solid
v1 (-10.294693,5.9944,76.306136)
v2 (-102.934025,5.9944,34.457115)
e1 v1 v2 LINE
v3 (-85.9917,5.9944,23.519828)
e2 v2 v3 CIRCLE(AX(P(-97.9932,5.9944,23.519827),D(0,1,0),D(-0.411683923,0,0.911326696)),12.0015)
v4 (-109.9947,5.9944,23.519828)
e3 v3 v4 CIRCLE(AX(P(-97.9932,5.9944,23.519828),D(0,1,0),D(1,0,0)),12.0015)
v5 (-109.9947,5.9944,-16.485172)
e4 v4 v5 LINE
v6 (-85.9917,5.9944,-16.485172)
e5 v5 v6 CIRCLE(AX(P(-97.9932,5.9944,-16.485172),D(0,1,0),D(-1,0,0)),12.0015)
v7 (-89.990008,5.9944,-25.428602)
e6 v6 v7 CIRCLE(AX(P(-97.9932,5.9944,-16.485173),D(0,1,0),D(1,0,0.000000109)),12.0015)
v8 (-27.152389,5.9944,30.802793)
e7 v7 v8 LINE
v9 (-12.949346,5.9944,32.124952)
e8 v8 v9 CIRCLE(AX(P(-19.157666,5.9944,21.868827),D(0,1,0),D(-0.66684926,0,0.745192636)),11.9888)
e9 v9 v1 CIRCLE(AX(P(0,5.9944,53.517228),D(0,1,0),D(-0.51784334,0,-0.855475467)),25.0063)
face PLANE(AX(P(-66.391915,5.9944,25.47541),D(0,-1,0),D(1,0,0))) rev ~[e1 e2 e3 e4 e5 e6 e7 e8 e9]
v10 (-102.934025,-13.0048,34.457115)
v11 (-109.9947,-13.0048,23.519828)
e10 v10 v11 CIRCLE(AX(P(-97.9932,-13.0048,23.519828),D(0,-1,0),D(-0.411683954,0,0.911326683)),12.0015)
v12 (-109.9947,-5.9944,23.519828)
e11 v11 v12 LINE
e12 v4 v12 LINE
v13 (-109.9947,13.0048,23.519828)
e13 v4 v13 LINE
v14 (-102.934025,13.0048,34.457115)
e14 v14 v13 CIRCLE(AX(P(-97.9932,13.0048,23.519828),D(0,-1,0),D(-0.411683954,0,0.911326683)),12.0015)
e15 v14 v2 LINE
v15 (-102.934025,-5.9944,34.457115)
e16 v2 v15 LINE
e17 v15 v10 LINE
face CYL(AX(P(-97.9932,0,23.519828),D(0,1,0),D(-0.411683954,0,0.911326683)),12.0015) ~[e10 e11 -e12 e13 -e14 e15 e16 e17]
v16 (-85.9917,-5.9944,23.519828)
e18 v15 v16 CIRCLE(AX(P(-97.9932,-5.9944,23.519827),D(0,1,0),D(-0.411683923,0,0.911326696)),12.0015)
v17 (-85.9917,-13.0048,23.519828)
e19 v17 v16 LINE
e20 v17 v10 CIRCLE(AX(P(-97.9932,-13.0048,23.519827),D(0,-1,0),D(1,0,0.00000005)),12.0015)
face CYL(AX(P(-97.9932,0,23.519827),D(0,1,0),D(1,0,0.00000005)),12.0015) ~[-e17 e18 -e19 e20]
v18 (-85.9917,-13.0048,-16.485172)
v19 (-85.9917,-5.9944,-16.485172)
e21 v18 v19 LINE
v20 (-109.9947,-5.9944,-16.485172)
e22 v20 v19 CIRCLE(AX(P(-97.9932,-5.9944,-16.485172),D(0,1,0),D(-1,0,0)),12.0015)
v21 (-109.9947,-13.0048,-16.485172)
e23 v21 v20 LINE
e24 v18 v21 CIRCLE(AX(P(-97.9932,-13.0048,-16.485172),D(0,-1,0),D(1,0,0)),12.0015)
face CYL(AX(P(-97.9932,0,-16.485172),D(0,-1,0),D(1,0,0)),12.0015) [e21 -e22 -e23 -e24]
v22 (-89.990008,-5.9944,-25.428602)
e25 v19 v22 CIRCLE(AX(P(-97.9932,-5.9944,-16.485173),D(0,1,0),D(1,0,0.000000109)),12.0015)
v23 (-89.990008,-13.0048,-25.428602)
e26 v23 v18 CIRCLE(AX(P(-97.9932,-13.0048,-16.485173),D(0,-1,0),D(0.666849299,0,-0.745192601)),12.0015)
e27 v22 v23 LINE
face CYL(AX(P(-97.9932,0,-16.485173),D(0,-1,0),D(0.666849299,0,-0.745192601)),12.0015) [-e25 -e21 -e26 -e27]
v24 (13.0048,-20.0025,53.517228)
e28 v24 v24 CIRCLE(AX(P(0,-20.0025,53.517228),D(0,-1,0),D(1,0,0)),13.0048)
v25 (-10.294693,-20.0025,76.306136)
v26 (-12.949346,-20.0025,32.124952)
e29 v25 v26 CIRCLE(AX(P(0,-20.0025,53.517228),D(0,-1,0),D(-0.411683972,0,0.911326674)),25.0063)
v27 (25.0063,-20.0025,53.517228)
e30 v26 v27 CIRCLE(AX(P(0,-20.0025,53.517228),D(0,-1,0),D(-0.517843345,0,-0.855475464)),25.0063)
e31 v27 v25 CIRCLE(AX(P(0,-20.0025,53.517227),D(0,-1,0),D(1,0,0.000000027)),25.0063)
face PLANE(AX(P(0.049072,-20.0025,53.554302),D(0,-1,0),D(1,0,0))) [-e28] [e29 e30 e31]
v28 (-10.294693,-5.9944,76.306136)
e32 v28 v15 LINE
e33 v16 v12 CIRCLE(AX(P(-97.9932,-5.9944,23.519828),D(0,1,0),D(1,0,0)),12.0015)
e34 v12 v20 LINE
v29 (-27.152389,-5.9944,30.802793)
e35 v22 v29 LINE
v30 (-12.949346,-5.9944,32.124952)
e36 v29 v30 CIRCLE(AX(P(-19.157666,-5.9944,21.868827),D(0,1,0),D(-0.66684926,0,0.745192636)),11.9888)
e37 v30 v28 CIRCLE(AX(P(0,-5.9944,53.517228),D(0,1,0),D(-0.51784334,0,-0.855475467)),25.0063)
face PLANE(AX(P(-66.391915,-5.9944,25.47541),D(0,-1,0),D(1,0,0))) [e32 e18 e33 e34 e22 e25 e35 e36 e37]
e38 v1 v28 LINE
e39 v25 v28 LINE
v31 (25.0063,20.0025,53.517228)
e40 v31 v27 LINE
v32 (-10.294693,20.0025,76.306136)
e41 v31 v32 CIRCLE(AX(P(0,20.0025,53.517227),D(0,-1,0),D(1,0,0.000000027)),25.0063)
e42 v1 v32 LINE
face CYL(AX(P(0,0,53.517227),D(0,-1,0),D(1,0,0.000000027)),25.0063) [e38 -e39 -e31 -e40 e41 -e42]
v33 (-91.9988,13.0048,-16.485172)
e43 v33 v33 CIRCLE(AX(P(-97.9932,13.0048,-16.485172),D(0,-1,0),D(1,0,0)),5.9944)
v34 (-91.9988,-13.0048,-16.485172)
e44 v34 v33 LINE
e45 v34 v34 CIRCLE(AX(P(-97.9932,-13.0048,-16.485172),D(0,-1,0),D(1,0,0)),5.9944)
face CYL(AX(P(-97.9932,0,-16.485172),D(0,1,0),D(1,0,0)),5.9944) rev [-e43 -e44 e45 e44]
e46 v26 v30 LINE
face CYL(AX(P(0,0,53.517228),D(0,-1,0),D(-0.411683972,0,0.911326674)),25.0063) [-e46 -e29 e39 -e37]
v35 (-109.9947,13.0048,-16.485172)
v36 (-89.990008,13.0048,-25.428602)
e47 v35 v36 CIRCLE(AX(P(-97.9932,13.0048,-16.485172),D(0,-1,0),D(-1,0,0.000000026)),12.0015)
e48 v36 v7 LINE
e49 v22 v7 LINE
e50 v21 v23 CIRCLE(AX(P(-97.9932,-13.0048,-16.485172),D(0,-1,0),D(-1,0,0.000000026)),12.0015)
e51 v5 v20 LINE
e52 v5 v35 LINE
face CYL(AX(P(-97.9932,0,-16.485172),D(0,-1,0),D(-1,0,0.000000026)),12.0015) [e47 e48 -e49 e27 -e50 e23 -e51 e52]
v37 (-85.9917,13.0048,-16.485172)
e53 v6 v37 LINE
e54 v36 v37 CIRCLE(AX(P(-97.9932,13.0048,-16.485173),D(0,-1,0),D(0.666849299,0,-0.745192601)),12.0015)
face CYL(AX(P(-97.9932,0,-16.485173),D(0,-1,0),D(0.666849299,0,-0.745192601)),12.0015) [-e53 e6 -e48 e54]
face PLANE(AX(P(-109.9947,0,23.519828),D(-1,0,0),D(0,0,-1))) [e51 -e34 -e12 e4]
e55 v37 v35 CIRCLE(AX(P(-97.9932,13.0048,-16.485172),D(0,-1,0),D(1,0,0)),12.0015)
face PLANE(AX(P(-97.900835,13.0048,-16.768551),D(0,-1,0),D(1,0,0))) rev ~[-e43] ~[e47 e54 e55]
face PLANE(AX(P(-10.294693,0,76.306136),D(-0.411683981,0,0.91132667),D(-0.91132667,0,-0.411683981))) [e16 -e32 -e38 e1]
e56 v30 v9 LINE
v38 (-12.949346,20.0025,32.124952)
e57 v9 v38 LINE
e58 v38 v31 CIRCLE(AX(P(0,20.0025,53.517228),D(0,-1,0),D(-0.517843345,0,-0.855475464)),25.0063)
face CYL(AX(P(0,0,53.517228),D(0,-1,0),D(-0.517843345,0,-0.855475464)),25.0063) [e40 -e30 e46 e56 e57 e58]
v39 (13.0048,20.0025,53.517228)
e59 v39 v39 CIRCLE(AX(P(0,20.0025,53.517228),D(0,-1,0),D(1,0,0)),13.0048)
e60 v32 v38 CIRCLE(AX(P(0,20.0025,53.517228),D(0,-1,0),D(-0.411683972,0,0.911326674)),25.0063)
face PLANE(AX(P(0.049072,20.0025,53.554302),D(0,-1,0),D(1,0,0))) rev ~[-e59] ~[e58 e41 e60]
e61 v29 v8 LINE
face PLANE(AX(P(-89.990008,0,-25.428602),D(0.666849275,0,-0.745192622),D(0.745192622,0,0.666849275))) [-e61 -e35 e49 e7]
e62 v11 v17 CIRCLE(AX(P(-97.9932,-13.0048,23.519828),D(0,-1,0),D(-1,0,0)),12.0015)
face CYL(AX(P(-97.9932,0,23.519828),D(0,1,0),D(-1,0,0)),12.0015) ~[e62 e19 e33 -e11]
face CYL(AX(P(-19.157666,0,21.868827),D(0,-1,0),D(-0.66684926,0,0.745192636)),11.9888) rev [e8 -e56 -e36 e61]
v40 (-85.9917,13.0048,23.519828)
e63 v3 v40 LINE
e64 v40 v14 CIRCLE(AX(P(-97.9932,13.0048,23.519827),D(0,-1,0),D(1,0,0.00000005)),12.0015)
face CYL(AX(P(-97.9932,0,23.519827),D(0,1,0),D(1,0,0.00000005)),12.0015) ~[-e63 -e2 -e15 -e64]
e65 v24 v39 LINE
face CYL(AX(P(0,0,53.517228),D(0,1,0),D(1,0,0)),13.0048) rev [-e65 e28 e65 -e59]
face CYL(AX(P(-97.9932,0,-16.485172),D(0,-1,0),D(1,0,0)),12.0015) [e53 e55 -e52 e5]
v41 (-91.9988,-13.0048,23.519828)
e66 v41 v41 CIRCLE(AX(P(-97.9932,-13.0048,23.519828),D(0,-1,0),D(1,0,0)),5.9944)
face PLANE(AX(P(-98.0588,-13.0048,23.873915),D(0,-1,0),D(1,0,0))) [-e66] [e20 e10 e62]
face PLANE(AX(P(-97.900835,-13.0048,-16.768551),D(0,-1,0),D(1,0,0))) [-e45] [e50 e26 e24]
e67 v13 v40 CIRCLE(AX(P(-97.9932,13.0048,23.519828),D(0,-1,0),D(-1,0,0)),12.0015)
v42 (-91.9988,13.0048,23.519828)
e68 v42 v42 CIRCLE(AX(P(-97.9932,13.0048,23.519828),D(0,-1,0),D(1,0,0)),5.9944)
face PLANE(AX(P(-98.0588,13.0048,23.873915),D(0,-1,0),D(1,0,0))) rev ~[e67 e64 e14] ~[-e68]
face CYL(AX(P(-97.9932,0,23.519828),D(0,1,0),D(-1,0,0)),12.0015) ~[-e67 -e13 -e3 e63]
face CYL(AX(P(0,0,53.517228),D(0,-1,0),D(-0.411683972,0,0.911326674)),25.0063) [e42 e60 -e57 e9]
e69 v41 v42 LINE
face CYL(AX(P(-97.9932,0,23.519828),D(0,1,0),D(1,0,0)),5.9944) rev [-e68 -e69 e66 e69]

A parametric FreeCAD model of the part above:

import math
import FreeCAD as App
import Part
import Sketcher
Q = App.Units.Quantity

doc = App.newDocument("Part")
body = doc.addObject("PartDesign::Body", "Body")

# Sketch on XZ plane
sketch1 = body.newObject("Sketcher::SketchObject", "Sketch")
sketch1.AttachmentSupport = (doc.getObject("XZ_Plane"), [""])
sketch1.MapMode = "FlatFace"
sketch1.addGeometry([
    Part.ArcOfCircle(Part.Circle(App.Vector(0, 54, 0), App.Vector(0, 0, 1), 25), math.radians(114), math.radians(239)),  # 0
    Part.LineSegment(App.Vector(-10, 76, 0), App.Vector(-103, 34, 0)),  # 1
    Part.ArcOfCircle(Part.Circle(App.Vector(-98, 24, 0), App.Vector(0, 0, 1), 12), math.radians(0), math.radians(114)),  # 2
    Part.ArcOfCircle(Part.Circle(App.Vector(-98, 24, 0), App.Vector(0, 0, 1), 12), math.radians(180), math.radians(360)),  # 3
    Part.LineSegment(App.Vector(-110, 24, 0), App.Vector(-110, -16, 0)),  # 4
    Part.ArcOfCircle(Part.Circle(App.Vector(-98, -16, 0), App.Vector(0, 0, 1), 12), math.radians(0), math.radians(180)),  # 5
    Part.ArcOfCircle(Part.Circle(App.Vector(-98, -16, 0), App.Vector(0, 0, 1), 12), math.radians(-48), math.radians(0)),  # 6
    Part.LineSegment(App.Vector(-90, -25, 0), App.Vector(-27, 31, 0)),  # 7
    Part.ArcOfCircle(Part.Circle(App.Vector(-19, 22, 0), App.Vector(0, 0, 1), 12), math.radians(59), math.radians(132)),  # 8
], False)
sketch1.addConstraint([
    Sketcher.Constraint("Tangent", 0, 1, 1, 1),
    Sketcher.Constraint("Tangent", 1, 2, 2, 2),
    Sketcher.Constraint("Tangent", 2, 1, 3, 2),
    Sketcher.Constraint("Tangent", 3, 1, 4, 1),
    Sketcher.Constraint("Tangent", 4, 2, 5, 2),
    Sketcher.Constraint("Tangent", 5, 1, 6, 2),
    Sketcher.Constraint("Tangent", 6, 1, 7, 1),
    Sketcher.Constraint("Tangent", 7, 2, 8, 2),
    Sketcher.Constraint("Tangent", 8, 1, 0, 2),
    Sketcher.Constraint("Vertical", 4),
    Sketcher.Constraint("Equal", 2, 3),
    Sketcher.Constraint("Equal", 3, 5),
    Sketcher.Constraint("Equal", 5, 6),
    Sketcher.Constraint("PointOnObject", 0, 3, -2),
    Sketcher.Constraint("Horizontal", 3, 3, 2, 1),
    Sketcher.Constraint("Horizontal", 4, 2, 5, 1),
    Sketcher.Constraint("Radius", 8, Q("0.472 in")),
    Sketcher.Constraint("Radius", 0, Q("0.9845 in")),
    Sketcher.Constraint("Radius", 2, Q("0.4725 in")),
    Sketcher.Constraint("DistanceY", 4, 2, 4, 1, Q("1.575 in")),
    Sketcher.Constraint("DistanceY", 5, 3, 8, 3, Q("1.51 in")),
    Sketcher.Constraint("DistanceX", 2, 3, -1, 1, Q("3.858 in")),
    Sketcher.Constraint("DistanceY", 2, 3, 0, 3, Q("1.181 in")),
    Sketcher.Constraint("DistanceY", -1, 1, 3, 3, 23.519828),
])
pad1 = body.newObject("PartDesign::Pad", "Pad")
pad1.Profile = sketch1
pad1.Length = Q("0.472 in")
pad1.Midplane = True

# Sketch on XZ plane
sketch2 = body.newObject("Sketcher::SketchObject", "Sketch001")
sketch2.AttachmentSupport = (doc.getObject("XZ_Plane"), [""])
sketch2.MapMode = "FlatFace"
sketch2.addGeometry([
    Part.ArcOfCircle(Part.Circle(App.Vector(0, 54, 0), App.Vector(0, 0, 1), 25), math.radians(-121), math.radians(0)),
    Part.ArcOfCircle(Part.Circle(App.Vector(0, 54, 0), App.Vector(0, 0, 1), 25), math.radians(0), math.radians(114)),
    Part.ArcOfCircle(Part.Circle(App.Vector(0, 54, 0), App.Vector(0, 0, 1), 25), math.radians(114), math.radians(239)),
    Part.Circle(App.Vector(0, 54, 0), App.Vector(0, 0, 1), 13),
], False)
sketch2.addConstraint([
    Sketcher.Constraint("Tangent", 0, 2, 1, 1),
    Sketcher.Constraint("Tangent", 1, 2, 2, 1),
    Sketcher.Constraint("Tangent", 2, 2, 0, 1),
    Sketcher.Constraint("Coincident", 3, 3, 0, 3),
    Sketcher.Constraint("PointOnObject", 0, 3, -2),
    Sketcher.Constraint("Horizontal", 3, 3, 0, 2),
    Sketcher.Constraint("Diameter", 3, Q("1.024 in")),
    Sketcher.Constraint("Radius", 0, Q("0.9845 in")),
    Sketcher.Constraint("DistanceY", -1, 1, 0, 3, 53.517228),
    Sketcher.Constraint("DistanceY", -1, 1, 2, 2, 32.124952),
    Sketcher.Constraint("DistanceY", 2, 3, 1, 2, 22.788908),
])
pad2 = body.newObject("PartDesign::Pad", "Pad001")
pad2.Profile = sketch2
pad2.Length = Q("1.575 in")
pad2.Midplane = True

# Sketch on XZ plane
sketch3 = body.newObject("Sketcher::SketchObject", "Sketch002")
sketch3.AttachmentSupport = (doc.getObject("XZ_Plane"), [""])
sketch3.MapMode = "FlatFace"
sketch3.addGeometry([
    Part.ArcOfCircle(Part.Circle(App.Vector(-98, 24, 0), App.Vector(0, 0, 1), 12), math.radians(0), math.radians(114)),  # 0
    Part.ArcOfCircle(Part.Circle(App.Vector(-98, 24, 0), App.Vector(0, 0, 1), 12), math.radians(114), math.radians(180)),  # 1
    Part.ArcOfCircle(Part.Circle(App.Vector(-98, 24, 0), App.Vector(0, 0, 1), 12), math.radians(180), math.radians(360)),  # 2
    Part.Circle(App.Vector(-98, 24, 0), App.Vector(0, 0, 1), 6),  # 3
    Part.ArcOfCircle(Part.Circle(App.Vector(-98, -16, 0), App.Vector(0, 0, 1), 12), math.radians(180), math.radians(312)),  # 4
    Part.ArcOfCircle(Part.Circle(App.Vector(-98, -16, 0), App.Vector(0, 0, 1), 12), math.radians(-48), math.radians(0)),  # 5
    Part.ArcOfCircle(Part.Circle(App.Vector(-98, -16, 0), App.Vector(0, 0, 1), 12), math.radians(0), math.radians(180)),  # 6
    Part.Circle(App.Vector(-98, -16, 0), App.Vector(0, 0, 1), 6),  # 7
], False)
sketch3.addConstraint([
    Sketcher.Constraint("Tangent", 0, 2, 1, 1),
    Sketcher.Constraint("Tangent", 1, 2, 2, 1),
    Sketcher.Constraint("Tangent", 2, 2, 0, 1),
    Sketcher.Constraint("Tangent", 4, 2, 5, 1),
    Sketcher.Constraint("Tangent", 5, 2, 6, 1),
    Sketcher.Constraint("Tangent", 6, 2, 4, 1),
    Sketcher.Constraint("Coincident", 3, 3, 0, 3),
    Sketcher.Constraint("Coincident", 7, 3, 4, 3),
    Sketcher.Constraint("Equal", 2, 4),
    Sketcher.Constraint("Equal", 3, 7),
    Sketcher.Constraint("Horizontal", 3, 3, 1, 2),
    Sketcher.Constraint("Horizontal", 1, 2, 2, 2),
    Sketcher.Constraint("Horizontal", 7, 3, 5, 2),
    Sketcher.Constraint("Horizontal", 5, 2, 6, 2),
    Sketcher.Constraint("Vertical", 3, 3, 4, 3),
    Sketcher.Constraint("Diameter", 3, Q("0.472 in")),
    Sketcher.Constraint("Radius", 0, Q("0.4725 in")),
    Sketcher.Constraint("DistanceX", 0, 3, -1, 1, Q("3.858 in")),
    Sketcher.Constraint("DistanceY", 4, 3, 0, 3, Q("1.575 in")),
    Sketcher.Constraint("DistanceY", 4, 2, -1, 1, 25.428602),
    Sketcher.Constraint("DistanceY", -1, 1, 2, 3, 23.519828),
    Sketcher.Constraint("DistanceX", 0, 2, -1, 1, 102.934025),
])
pad3 = body.newObject("PartDesign::Pad", "Pad002")
pad3.Profile = sketch3
pad3.Length = Q("1.024 in")
pad3.Midplane = True

doc.recompute()
